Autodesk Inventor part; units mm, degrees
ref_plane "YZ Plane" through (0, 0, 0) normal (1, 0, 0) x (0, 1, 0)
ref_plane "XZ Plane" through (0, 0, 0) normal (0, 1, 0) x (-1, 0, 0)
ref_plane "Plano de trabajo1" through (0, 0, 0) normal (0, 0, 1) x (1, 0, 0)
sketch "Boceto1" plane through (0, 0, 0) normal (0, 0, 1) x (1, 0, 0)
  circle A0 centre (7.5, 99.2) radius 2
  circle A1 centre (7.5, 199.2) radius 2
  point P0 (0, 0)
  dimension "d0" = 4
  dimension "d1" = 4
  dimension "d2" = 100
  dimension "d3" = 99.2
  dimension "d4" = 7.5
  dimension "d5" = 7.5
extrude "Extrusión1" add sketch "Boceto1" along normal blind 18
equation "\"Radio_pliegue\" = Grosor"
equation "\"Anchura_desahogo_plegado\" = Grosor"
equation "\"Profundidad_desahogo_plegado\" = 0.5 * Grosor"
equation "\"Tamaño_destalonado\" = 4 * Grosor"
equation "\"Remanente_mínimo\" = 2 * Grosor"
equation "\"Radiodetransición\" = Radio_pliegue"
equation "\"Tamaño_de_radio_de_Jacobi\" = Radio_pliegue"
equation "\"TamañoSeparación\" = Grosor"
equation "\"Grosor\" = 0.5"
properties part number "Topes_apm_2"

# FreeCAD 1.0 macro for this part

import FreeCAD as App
import Part
import Sketcher

V = App.Vector
Q = App.Units.Quantity

doc = App.newDocument("Part")
params = doc.addObject("Spreadsheet::Sheet", "Params")
for row, (alias, value) in enumerate([
    ("sketch1_diameter", "4 mm"),
    ("pad1_length", "18 mm"),
], start=1):
    params.set(f"A{row}", alias)
    params.set(f"B{row}", "=" + value)
    params.setAlias(f"B{row}", alias)

body = doc.addObject("PartDesign::Body", "Body")
body.AllowCompound = True

# Sketch on XY plane
sketch1 = body.newObject("Sketcher::SketchObject", "Sketch")
sketch1.AttachmentSupport = (doc.getObject("XY_Plane"), [""])
sketch1.MapMode = "FlatFace"
sketch1.addGeometry([
    Part.Circle(V(7.5, 99.2, 0), V(0, 0, 1), 2),
    Part.Circle(V(7.5, 199.2, 0), V(0, 0, 1), 2),
], False)
sketch1.addConstraint([
    Sketcher.Constraint("Equal", 0, 1),
    Sketcher.Constraint("Vertical", 0, 3, 1, 3),
    Sketcher.Constraint("Diameter", 0, Q("4 mm")),
    Sketcher.Constraint("DistanceY", 0, 3, 1, 3, Q("100 mm")),
    Sketcher.Constraint("DistanceX", -1, 1, 0, 3, Q("7.5 mm")),
    Sketcher.Constraint("DistanceY", -1, 1, 0, 3, Q("99.2 mm")),
])
sketch1.setExpression("Constraints[2]", "Params.sketch1_diameter")
pad1 = body.newObject("PartDesign::Pad", "Pad")
pad1.Profile = sketch1
pad1.setExpression("Length", "Params.pad1_length")

doc.recompute()
